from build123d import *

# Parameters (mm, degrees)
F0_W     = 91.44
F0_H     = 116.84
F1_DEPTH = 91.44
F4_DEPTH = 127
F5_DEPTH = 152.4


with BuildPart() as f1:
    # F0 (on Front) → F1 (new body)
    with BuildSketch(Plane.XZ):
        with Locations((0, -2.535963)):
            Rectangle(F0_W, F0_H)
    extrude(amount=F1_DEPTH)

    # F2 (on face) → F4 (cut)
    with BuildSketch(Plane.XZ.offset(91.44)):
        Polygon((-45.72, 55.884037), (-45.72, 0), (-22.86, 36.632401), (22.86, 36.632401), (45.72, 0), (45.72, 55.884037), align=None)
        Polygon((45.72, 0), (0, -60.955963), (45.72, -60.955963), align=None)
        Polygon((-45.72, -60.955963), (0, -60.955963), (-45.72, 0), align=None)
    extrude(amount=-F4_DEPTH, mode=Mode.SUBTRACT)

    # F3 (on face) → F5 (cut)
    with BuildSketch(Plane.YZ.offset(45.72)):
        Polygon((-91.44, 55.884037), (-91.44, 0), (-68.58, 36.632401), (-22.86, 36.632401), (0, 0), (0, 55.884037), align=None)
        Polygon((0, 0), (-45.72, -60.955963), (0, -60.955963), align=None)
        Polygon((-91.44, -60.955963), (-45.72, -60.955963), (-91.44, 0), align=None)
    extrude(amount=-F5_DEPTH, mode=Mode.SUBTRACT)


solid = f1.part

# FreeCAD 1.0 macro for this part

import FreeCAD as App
import Part
import Sketcher
Q = App.Units.Quantity


def add_polygon(sketch, points):
    """Adds a closed chain of lines whose ends are joined by coincident constraints."""
    first, n = sketch.GeometryCount, len(points)
    for a, b in zip(points, points[1:] + points[:1]):
        sketch.addGeometry(Part.LineSegment(App.Vector(*a, 0), App.Vector(*b, 0)), False)
    for i in range(n):
        sketch.addConstraint(Sketcher.Constraint("Coincident", first + i, 2, first + (i + 1) % n, 1))

doc = App.newDocument("Part")
body = doc.addObject("PartDesign::Body", "Body")

sketch1 = doc.addObject("Sketcher::SketchObject", "Sketch")
body.addObject(sketch1)
sketch1.AttachmentSupport = (doc.XZ_Plane, [""])
sketch1.MapMode = "FlatFace"
add_polygon(sketch1, [(-46, 56), (-46, -61), (46, -61), (46, 56)])
sketch1.addConstraint(Sketcher.Constraint("Vertical", 0))
sketch1.addConstraint(Sketcher.Constraint("Horizontal", 1))
sketch1.addConstraint(Sketcher.Constraint("Vertical", 2))
sketch1.addConstraint(Sketcher.Constraint("Horizontal", 3))
sketch1.addConstraint(Sketcher.Constraint("DistanceX", 1, 1, 1, 2, Q("3.6 in")))
sketch1.addConstraint(Sketcher.Constraint("DistanceY", 0, 2, 0, 1, Q("4.6 in")))
sketch1.addConstraint(Sketcher.Constraint("DistanceX", 0, 2, -1, 1, Q("1.8 in")))
sketch1.addConstraint(Sketcher.Constraint("DistanceY", 0, 2, -1, 1, 60.955963))
pad1 = doc.addObject("PartDesign::Pad", "Pad")
body.addObject(pad1)
pad1.Profile = sketch1
pad1.Length = Q("3.6 in")

sketch2 = doc.addObject("Sketcher::SketchObject", "Sketch001")
body.addObject(sketch2)
sketch2.AttachmentSupport = (doc.XZ_Plane, [""])
sketch2.MapMode = "FlatFace"
sketch2.AttachmentOffset = App.Placement(App.Vector(0, 0, 3.6 * 25.4), App.Rotation())
add_polygon(sketch2, [(-46, 56), (-46, 0), (-23, 37), (23, 37), (46, 0), (46, 56)])
add_polygon(sketch2, [(46, 0), (0, -61), (46, -61)])
add_polygon(sketch2, [(-46, -61), (0, -61), (-46, 0)])
sketch2.addConstraint(Sketcher.Constraint("Vertical", 0))
sketch2.addConstraint(Sketcher.Constraint("Horizontal", 2))
sketch2.addConstraint(Sketcher.Constraint("Vertical", 4))
sketch2.addConstraint(Sketcher.Constraint("Horizontal", 5))
sketch2.addConstraint(Sketcher.Constraint("Horizontal", 7))
sketch2.addConstraint(Sketcher.Constraint("Vertical", 8))
sketch2.addConstraint(Sketcher.Constraint("Horizontal", 9))
sketch2.addConstraint(Sketcher.Constraint("Vertical", 11))
sketch2.addConstraint(Sketcher.Constraint("Coincident", 8, 2, 3, 2))
sketch2.addConstraint(Sketcher.Constraint("Coincident", 9, 2, 6, 2))
sketch2.addConstraint(Sketcher.Constraint("Coincident", 10, 2, 0, 2))
sketch2.addConstraint(Sketcher.Constraint("Symmetric", 0, 2, 3, 2, -1, 1))
sketch2.addConstraint(Sketcher.Constraint("PointOnObject", 0, 2, -1))
sketch2.addConstraint(Sketcher.Constraint("PointOnObject", 6, 2, -2))
sketch2.addConstraint(Sketcher.Constraint("Equal", 2, 7))
sketch2.addConstraint(Sketcher.Constraint("Equal", 1, 3))
sketch2.addConstraint(Sketcher.Constraint("DistanceX", 2, 1, 2, 2, Q("1.8 in")))
sketch2.addConstraint(Sketcher.Constraint("Distance", 1, Q("1.7 in")))
sketch2.addConstraint(Sketcher.Constraint("DistanceY", 6, 2, 4, 2, Q("4.6 in")))
sketch2.addConstraint(Sketcher.Constraint("Distance", 6, 76.19677))
pocket1 = doc.addObject("PartDesign::Pocket", "Pocket")
body.addObject(pocket1)
pocket1.Profile = sketch2
pocket1.Length = Q("5 in")

sketch3 = doc.addObject("Sketcher::SketchObject", "Sketch002")
body.addObject(sketch3)
sketch3.AttachmentSupport = (doc.YZ_Plane, [""])
sketch3.MapMode = "FlatFace"
sketch3.AttachmentOffset = App.Placement(App.Vector(0, 0, 1.8 * 25.4), App.Rotation())
add_polygon(sketch3, [(-91, 56), (-91, 0), (-69, 37), (-23, 37), (0, 0), (0, 56)])
add_polygon(sketch3, [(0, 0), (-46, -61), (0, -61)])
add_polygon(sketch3, [(-91, -61), (-46, -61), (-91, 0)])
sketch3.addConstraint(Sketcher.Constraint("Vertical", 0))
sketch3.addConstraint(Sketcher.Constraint("Horizontal", 2))
sketch3.addConstraint(Sketcher.Constraint("Vertical", 4))
sketch3.addConstraint(Sketcher.Constraint("Horizontal", 5))
sketch3.addConstraint(Sketcher.Constraint("Horizontal", 7))
sketch3.addConstraint(Sketcher.Constraint("Vertical", 8))
sketch3.addConstraint(Sketcher.Constraint("Horizontal", 9))
sketch3.addConstraint(Sketcher.Constraint("Vertical", 11))
sketch3.addConstraint(Sketcher.Constraint("Coincident", 3, 2, -1, 1))
sketch3.addConstraint(Sketcher.Constraint("Coincident", 8, 2, -1, 1))
sketch3.addConstraint(Sketcher.Constraint("Coincident", 9, 2, 6, 2))
sketch3.addConstraint(Sketcher.Constraint("Coincident", 10, 2, 0, 2))
sketch3.addConstraint(Sketcher.Constraint("PointOnObject", 0, 2, -1))
sketch3.addConstraint(Sketcher.Constraint("Equal", 2, 7))
sketch3.addConstraint(Sketcher.Constraint("Equal", 7, 9))
sketch3.addConstraint(Sketcher.Constraint("Equal", 1, 3))
sketch3.addConstraint(Sketcher.Constraint("DistanceX", 2, 1, 2, 2, Q("1.8 in")))
sketch3.addConstraint(Sketcher.Constraint("Distance", 1, Q("1.7 in")))
sketch3.addConstraint(Sketcher.Constraint("DistanceY", 6, 2, 4, 2, Q("4.6 in")))
sketch3.addConstraint(Sketcher.Constraint("Distance", 6, 76.19677))
pocket2 = doc.addObject("PartDesign::Pocket", "Pocket001")
body.addObject(pocket2)
pocket2.Profile = sketch3
pocket2.Length = Q("6 in")

doc.recompute()
